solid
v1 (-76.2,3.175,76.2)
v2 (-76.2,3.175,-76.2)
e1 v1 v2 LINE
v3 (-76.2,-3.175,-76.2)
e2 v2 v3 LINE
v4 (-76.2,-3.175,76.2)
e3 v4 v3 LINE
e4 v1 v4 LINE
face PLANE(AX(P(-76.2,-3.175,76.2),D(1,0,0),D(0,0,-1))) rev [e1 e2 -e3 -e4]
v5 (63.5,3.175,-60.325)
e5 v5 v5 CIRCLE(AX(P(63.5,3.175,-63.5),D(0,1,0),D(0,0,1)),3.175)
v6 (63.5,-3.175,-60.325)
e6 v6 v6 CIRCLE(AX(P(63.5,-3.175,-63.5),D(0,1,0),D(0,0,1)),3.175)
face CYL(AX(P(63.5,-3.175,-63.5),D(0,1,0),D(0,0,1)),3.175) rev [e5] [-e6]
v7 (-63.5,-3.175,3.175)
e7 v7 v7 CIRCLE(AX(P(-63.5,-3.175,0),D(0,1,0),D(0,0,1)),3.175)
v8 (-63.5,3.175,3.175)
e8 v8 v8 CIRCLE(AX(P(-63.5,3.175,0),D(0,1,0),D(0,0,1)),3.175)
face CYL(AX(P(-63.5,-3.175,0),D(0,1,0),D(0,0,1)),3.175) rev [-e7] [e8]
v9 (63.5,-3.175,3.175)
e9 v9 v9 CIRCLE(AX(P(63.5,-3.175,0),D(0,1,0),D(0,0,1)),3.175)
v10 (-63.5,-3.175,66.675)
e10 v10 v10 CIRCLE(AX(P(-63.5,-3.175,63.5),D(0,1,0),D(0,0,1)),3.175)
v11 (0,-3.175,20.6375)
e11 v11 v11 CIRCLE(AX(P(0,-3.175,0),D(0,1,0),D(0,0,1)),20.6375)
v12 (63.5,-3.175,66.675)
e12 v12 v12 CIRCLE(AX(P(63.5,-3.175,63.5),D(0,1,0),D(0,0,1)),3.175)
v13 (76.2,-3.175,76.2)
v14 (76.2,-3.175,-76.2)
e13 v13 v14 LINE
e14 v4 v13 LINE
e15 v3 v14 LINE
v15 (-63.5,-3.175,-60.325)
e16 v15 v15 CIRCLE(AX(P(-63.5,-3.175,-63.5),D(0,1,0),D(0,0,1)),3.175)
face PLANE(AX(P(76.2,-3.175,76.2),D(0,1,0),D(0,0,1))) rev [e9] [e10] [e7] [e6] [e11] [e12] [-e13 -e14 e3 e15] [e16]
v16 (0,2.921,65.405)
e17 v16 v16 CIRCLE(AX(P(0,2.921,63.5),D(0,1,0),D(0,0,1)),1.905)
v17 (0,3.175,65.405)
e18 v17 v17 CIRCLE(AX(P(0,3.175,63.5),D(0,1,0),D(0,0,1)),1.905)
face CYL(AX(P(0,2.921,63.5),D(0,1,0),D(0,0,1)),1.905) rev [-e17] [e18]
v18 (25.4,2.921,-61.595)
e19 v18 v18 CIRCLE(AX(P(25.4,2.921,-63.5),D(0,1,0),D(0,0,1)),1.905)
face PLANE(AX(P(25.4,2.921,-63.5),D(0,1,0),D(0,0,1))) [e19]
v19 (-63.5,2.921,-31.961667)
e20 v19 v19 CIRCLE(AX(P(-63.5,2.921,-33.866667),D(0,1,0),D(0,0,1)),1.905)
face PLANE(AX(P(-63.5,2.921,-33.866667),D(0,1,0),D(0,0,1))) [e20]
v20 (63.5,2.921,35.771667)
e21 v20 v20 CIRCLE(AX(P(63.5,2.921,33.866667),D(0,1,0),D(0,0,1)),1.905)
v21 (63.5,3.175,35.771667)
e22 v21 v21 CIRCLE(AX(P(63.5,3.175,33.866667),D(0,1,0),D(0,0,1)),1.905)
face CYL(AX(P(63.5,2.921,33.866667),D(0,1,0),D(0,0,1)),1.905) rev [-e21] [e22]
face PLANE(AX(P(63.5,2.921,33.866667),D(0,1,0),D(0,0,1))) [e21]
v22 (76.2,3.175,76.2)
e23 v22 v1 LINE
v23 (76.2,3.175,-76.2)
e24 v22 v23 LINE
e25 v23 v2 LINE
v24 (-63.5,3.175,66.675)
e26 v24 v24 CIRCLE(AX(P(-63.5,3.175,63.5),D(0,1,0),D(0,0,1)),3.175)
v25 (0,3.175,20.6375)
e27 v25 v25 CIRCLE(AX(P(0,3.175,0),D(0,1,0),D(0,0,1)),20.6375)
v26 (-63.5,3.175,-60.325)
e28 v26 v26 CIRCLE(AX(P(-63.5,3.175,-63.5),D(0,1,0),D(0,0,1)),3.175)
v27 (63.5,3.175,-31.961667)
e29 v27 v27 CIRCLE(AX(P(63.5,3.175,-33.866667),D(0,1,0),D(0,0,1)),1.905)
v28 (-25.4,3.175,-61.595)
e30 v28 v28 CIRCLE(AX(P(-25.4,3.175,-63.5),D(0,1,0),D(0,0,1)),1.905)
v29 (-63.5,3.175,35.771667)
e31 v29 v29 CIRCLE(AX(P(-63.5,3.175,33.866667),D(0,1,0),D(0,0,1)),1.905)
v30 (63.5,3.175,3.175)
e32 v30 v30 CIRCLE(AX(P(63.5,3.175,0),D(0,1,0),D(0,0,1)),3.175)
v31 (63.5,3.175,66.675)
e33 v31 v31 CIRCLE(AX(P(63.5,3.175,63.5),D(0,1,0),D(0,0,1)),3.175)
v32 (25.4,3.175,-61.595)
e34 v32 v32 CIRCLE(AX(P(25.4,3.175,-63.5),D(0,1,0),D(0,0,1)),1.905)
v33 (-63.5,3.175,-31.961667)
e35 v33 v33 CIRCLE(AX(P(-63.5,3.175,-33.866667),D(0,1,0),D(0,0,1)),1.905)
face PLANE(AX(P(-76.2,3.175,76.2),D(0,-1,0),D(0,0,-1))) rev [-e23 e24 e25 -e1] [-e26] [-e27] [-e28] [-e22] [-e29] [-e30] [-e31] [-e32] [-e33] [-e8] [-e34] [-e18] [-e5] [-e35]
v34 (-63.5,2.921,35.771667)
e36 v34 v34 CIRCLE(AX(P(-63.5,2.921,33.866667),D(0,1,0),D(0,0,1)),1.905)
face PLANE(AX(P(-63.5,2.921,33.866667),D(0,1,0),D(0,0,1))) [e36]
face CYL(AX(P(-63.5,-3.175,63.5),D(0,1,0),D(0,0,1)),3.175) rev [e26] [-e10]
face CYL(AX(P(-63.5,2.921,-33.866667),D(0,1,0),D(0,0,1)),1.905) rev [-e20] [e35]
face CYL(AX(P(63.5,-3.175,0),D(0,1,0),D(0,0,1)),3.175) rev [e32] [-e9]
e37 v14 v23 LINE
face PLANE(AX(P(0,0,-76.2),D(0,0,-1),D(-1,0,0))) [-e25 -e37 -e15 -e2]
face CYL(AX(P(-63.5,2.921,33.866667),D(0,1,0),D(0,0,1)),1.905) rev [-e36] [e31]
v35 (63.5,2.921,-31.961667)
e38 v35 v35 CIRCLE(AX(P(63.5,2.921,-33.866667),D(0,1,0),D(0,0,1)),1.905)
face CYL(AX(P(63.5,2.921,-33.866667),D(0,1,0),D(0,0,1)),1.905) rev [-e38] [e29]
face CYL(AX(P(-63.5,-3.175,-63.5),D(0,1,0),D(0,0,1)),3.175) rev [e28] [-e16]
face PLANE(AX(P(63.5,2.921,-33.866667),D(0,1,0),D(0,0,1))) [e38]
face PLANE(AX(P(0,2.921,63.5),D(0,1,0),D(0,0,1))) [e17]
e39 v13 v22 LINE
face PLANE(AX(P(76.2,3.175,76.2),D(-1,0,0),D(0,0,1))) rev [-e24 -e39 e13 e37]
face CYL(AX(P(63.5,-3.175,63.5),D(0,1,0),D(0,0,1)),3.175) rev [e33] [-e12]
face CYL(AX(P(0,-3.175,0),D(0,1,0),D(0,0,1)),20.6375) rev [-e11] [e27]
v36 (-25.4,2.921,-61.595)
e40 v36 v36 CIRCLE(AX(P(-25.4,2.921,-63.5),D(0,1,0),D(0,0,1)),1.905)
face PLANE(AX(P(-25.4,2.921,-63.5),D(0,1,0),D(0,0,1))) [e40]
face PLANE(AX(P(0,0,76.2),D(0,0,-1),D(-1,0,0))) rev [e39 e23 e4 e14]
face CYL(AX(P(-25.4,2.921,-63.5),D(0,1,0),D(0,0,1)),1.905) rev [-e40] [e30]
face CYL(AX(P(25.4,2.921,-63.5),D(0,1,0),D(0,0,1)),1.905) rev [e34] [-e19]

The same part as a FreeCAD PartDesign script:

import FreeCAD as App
import Part
import Sketcher
from FreeCAD import Vector
Q = App.Units.Quantity


def add_polygon(sketch, points):
    """Adds a closed chain of lines whose ends are joined by coincident constraints."""
    first, n = sketch.GeometryCount, len(points)
    for a, b in zip(points, points[1:] + points[:1]):
        sketch.addGeometry(Part.LineSegment(App.Vector(*a, 0), App.Vector(*b, 0)), False)
    for i in range(n):
        sketch.addConstraint(Sketcher.Constraint("Coincident", first + i, 2, first + (i + 1) % n, 1))

doc = App.newDocument("Part")
body = doc.addObject("PartDesign::Body", "Body")

# Sketch on XY plane
sketch1 = doc.addObject("Sketcher::SketchObject", "Sketch")
body.addObject(sketch1)
sketch1.AttachmentSupport = (doc.XY_Plane, [""])
sketch1.MapMode = "FlatFace"
add_polygon(sketch1, [(-76, 3), (-76, -3), (76, -3), (76, 3)])  # lines 0-3
sketch1.addConstraint(Sketcher.Constraint("Vertical", 0))
sketch1.addConstraint(Sketcher.Constraint("Horizontal", 1))
sketch1.addConstraint(Sketcher.Constraint("Vertical", 2))
sketch1.addConstraint(Sketcher.Constraint("Horizontal", 3))
sketch1.addConstraint(Sketcher.Constraint("Symmetric", 0, 2, 2, 2, -1, 1))
sketch1.addConstraint(Sketcher.Constraint("DistanceX", 1, 1, 1, 2, Q("6 in")))
sketch1.addConstraint(Sketcher.Constraint("DistanceY", 0, 2, 0, 1, Q("0.25 in")))
pad1 = doc.addObject("PartDesign::Pad", "Pad")
body.addObject(pad1)
pad1.Profile = sketch1
pad1.Length = Q("6 in")
pad1.Midplane = True

# Sketch on XZ plane
sketch2 = doc.addObject("Sketcher::SketchObject", "Sketch001")
body.addObject(sketch2)
sketch2.AttachmentSupport = (doc.XZ_Plane, [""])
sketch2.MapMode = "FlatFace"
sketch2.AttachmentOffset = App.Placement(Vector(0, 0, -0.125 * 25.4), App.Rotation())
sketch2.addGeometry(Part.Circle(Vector(-63.5, -63.5, 0), Vector(0, 0, 1), 3.2), False)
sketch2.addGeometry(Part.Circle(Vector(63.5, -63.5, 0), Vector(0, 0, 1), 3.2), False)
sketch2.addGeometry(Part.Circle(Vector(63.5, 0, 0), Vector(0, 0, 1), 3.2), False)
sketch2.addGeometry(Part.Circle(Vector(63.5, 63.5, 0), Vector(0, 0, 1), 3.2), False)
sketch2.addGeometry(Part.Circle(Vector(-63.5, 63.5, 0), Vector(0, 0, 1), 3.2), False)
sketch2.addGeometry(Part.Circle(Vector(-63.5, 0, 0), Vector(0, 0, 1), 3.2), False)
sketch2.addConstraint(Sketcher.Constraint("Equal", 0, 1))
sketch2.addConstraint(Sketcher.Constraint("Equal", 1, 2))
sketch2.addConstraint(Sketcher.Constraint("Equal", 2, 3))
sketch2.addConstraint(Sketcher.Constraint("Equal", 3, 4))
sketch2.addConstraint(Sketcher.Constraint("Equal", 4, 5))
sketch2.addConstraint(Sketcher.Constraint("Symmetric", 0, 3, 3, 3, -1, 1))
sketch2.addConstraint(Sketcher.Constraint("Symmetric", 1, 3, 4, 3, -1, 1))
sketch2.addConstraint(Sketcher.Constraint("Symmetric", 2, 3, 5, 3, -1, 1))
sketch2.addConstraint(Sketcher.Constraint("Symmetric", 0, 3, 1, 3, -2))
sketch2.addConstraint(Sketcher.Constraint("PointOnObject", 2, 3, -1))
sketch2.addConstraint(Sketcher.Constraint("Vertical", 1, 3, 2, 3))
sketch2.addConstraint(Sketcher.Constraint("Diameter", 0, Q("0.25 in")))
sketch2.addConstraint(Sketcher.Constraint("DistanceX", 0, 3, 1, 3, Q("5 in")))
sketch2.addConstraint(Sketcher.Constraint("DistanceY", 1, 3, 3, 3, Q("5 in")))
pocket1 = doc.addObject("PartDesign::Pocket", "Pocket")
body.addObject(pocket1)
pocket1.Profile = sketch2
pocket1.Type = "ThroughAll"
pocket1.Reversed = True

# Sketch on XZ plane
sketch3 = doc.addObject("Sketcher::SketchObject", "Sketch002")
body.addObject(sketch3)
sketch3.AttachmentSupport = (doc.XZ_Plane, [""])
sketch3.MapMode = "FlatFace"
sketch3.AttachmentOffset = App.Placement(Vector(0, 0, -0.125 * 25.4), App.Rotation())
sketch3.addGeometry(Part.Circle(Vector(-25.4, -63.5, 0), Vector(0, 0, 1), 1.9), False)
sketch3.addGeometry(Part.Circle(Vector(25.4, -63.5, 0), Vector(0, 0, 1), 1.9), False)
sketch3.addGeometry(Part.Circle(Vector(63.5, -33.9, 0), Vector(0, 0, 1), 1.9), False)
sketch3.addGeometry(Part.Circle(Vector(63.5, 33.9, 0), Vector(0, 0, 1), 1.9), False)
sketch3.addGeometry(Part.Circle(Vector(0, 63.5, 0), Vector(0, 0, 1), 1.9), False)
sketch3.addGeometry(Part.Circle(Vector(-63.5, 33.9, 0), Vector(0, 0, 1), 1.9), False)
sketch3.addGeometry(Part.Circle(Vector(-63.5, -33.9, 0), Vector(0, 0, 1), 1.9), False)
sketch3.addGeometry(Part.Circle(Vector(63.5, 63.5, 0), Vector(0, 0, 1), 3.2), False)
sketch3.addGeometry(Part.Circle(Vector(-63.5, -63.5, 0), Vector(0, 0, 1), 3.2), False)
sketch3.addConstraint(Sketcher.Constraint("Equal", 0, 1))
sketch3.addConstraint(Sketcher.Constraint("Equal", 1, 2))
sketch3.addConstraint(Sketcher.Constraint("Equal", 2, 3))
sketch3.addConstraint(Sketcher.Constraint("Equal", 3, 4))
sketch3.addConstraint(Sketcher.Constraint("Equal", 4, 5))
sketch3.addConstraint(Sketcher.Constraint("Equal", 5, 6))
sketch3.addConstraint(Sketcher.Constraint("Equal", 7, 8))
sketch3.addConstraint(Sketcher.Constraint("Symmetric", 2, 3, 5, 3, -1, 1))
sketch3.addConstraint(Sketcher.Constraint("Symmetric", 3, 3, 6, 3, -1, 1))
sketch3.addConstraint(Sketcher.Constraint("Symmetric", 7, 3, 8, 3, -1, 1))
sketch3.addConstraint(Sketcher.Constraint("Symmetric", 0, 3, 1, 3, -2))
sketch3.addConstraint(Sketcher.Constraint("Symmetric", 3, 3, 5, 3, -2))
sketch3.addConstraint(Sketcher.Constraint("PointOnObject", 4, 3, -2))
sketch3.addConstraint(Sketcher.Constraint("Horizontal", 4, 3, 7, 3))
sketch3.addConstraint(Sketcher.Constraint("Horizontal", 1, 3, 8, 3))
sketch3.addConstraint(Sketcher.Constraint("Vertical", 3, 3, 7, 3))
sketch3.addConstraint(Sketcher.Constraint("Diameter", 0, Q("0.15 in")))
sketch3.addConstraint(Sketcher.Constraint("Diameter", 7, Q("0.25 in")))
sketch3.addConstraint(Sketcher.Constraint("DistanceX", 0, 3, -1, 1, Q("1 in")))
sketch3.addConstraint(Sketcher.Constraint("DistanceY", 0, 3, 4, 3, Q("5 in")))
sketch3.addConstraint(Sketcher.Constraint("DistanceX", 5, 3, 3, 3, Q("5 in")))
sketch3.addConstraint(Sketcher.Constraint("DistanceY", 2, 3, -1, 1, 33.866667))
pocket2 = doc.addObject("PartDesign::Pocket", "Pocket001")
body.addObject(pocket2)
pocket2.Profile = sketch3
pocket2.Length = Q("0.01 in")
pocket2.Reversed = True

# Sketch on XZ plane
sketch4 = doc.addObject("Sketcher::SketchObject", "Sketch003")
body.addObject(sketch4)
sketch4.AttachmentSupport = (doc.XZ_Plane, [""])
sketch4.MapMode = "FlatFace"
sketch4.AttachmentOffset = App.Placement(Vector(0, 0, -0.125 * 25.4), App.Rotation())
sketch4.addGeometry(Part.Circle(Vector(0, 0, 0), Vector(0, 0, 1), 21), False)
sketch4.addConstraint(Sketcher.Constraint("Coincident", 0, 3, -1, 1))
sketch4.addConstraint(Sketcher.Constraint("Diameter", 0, Q("1.625 in")))
pocket3 = doc.addObject("PartDesign::Pocket", "Pocket002")
body.addObject(pocket3)
pocket3.Profile = sketch4
pocket3.Type = "ThroughAll"
pocket3.Reversed = True

doc.recompute()
